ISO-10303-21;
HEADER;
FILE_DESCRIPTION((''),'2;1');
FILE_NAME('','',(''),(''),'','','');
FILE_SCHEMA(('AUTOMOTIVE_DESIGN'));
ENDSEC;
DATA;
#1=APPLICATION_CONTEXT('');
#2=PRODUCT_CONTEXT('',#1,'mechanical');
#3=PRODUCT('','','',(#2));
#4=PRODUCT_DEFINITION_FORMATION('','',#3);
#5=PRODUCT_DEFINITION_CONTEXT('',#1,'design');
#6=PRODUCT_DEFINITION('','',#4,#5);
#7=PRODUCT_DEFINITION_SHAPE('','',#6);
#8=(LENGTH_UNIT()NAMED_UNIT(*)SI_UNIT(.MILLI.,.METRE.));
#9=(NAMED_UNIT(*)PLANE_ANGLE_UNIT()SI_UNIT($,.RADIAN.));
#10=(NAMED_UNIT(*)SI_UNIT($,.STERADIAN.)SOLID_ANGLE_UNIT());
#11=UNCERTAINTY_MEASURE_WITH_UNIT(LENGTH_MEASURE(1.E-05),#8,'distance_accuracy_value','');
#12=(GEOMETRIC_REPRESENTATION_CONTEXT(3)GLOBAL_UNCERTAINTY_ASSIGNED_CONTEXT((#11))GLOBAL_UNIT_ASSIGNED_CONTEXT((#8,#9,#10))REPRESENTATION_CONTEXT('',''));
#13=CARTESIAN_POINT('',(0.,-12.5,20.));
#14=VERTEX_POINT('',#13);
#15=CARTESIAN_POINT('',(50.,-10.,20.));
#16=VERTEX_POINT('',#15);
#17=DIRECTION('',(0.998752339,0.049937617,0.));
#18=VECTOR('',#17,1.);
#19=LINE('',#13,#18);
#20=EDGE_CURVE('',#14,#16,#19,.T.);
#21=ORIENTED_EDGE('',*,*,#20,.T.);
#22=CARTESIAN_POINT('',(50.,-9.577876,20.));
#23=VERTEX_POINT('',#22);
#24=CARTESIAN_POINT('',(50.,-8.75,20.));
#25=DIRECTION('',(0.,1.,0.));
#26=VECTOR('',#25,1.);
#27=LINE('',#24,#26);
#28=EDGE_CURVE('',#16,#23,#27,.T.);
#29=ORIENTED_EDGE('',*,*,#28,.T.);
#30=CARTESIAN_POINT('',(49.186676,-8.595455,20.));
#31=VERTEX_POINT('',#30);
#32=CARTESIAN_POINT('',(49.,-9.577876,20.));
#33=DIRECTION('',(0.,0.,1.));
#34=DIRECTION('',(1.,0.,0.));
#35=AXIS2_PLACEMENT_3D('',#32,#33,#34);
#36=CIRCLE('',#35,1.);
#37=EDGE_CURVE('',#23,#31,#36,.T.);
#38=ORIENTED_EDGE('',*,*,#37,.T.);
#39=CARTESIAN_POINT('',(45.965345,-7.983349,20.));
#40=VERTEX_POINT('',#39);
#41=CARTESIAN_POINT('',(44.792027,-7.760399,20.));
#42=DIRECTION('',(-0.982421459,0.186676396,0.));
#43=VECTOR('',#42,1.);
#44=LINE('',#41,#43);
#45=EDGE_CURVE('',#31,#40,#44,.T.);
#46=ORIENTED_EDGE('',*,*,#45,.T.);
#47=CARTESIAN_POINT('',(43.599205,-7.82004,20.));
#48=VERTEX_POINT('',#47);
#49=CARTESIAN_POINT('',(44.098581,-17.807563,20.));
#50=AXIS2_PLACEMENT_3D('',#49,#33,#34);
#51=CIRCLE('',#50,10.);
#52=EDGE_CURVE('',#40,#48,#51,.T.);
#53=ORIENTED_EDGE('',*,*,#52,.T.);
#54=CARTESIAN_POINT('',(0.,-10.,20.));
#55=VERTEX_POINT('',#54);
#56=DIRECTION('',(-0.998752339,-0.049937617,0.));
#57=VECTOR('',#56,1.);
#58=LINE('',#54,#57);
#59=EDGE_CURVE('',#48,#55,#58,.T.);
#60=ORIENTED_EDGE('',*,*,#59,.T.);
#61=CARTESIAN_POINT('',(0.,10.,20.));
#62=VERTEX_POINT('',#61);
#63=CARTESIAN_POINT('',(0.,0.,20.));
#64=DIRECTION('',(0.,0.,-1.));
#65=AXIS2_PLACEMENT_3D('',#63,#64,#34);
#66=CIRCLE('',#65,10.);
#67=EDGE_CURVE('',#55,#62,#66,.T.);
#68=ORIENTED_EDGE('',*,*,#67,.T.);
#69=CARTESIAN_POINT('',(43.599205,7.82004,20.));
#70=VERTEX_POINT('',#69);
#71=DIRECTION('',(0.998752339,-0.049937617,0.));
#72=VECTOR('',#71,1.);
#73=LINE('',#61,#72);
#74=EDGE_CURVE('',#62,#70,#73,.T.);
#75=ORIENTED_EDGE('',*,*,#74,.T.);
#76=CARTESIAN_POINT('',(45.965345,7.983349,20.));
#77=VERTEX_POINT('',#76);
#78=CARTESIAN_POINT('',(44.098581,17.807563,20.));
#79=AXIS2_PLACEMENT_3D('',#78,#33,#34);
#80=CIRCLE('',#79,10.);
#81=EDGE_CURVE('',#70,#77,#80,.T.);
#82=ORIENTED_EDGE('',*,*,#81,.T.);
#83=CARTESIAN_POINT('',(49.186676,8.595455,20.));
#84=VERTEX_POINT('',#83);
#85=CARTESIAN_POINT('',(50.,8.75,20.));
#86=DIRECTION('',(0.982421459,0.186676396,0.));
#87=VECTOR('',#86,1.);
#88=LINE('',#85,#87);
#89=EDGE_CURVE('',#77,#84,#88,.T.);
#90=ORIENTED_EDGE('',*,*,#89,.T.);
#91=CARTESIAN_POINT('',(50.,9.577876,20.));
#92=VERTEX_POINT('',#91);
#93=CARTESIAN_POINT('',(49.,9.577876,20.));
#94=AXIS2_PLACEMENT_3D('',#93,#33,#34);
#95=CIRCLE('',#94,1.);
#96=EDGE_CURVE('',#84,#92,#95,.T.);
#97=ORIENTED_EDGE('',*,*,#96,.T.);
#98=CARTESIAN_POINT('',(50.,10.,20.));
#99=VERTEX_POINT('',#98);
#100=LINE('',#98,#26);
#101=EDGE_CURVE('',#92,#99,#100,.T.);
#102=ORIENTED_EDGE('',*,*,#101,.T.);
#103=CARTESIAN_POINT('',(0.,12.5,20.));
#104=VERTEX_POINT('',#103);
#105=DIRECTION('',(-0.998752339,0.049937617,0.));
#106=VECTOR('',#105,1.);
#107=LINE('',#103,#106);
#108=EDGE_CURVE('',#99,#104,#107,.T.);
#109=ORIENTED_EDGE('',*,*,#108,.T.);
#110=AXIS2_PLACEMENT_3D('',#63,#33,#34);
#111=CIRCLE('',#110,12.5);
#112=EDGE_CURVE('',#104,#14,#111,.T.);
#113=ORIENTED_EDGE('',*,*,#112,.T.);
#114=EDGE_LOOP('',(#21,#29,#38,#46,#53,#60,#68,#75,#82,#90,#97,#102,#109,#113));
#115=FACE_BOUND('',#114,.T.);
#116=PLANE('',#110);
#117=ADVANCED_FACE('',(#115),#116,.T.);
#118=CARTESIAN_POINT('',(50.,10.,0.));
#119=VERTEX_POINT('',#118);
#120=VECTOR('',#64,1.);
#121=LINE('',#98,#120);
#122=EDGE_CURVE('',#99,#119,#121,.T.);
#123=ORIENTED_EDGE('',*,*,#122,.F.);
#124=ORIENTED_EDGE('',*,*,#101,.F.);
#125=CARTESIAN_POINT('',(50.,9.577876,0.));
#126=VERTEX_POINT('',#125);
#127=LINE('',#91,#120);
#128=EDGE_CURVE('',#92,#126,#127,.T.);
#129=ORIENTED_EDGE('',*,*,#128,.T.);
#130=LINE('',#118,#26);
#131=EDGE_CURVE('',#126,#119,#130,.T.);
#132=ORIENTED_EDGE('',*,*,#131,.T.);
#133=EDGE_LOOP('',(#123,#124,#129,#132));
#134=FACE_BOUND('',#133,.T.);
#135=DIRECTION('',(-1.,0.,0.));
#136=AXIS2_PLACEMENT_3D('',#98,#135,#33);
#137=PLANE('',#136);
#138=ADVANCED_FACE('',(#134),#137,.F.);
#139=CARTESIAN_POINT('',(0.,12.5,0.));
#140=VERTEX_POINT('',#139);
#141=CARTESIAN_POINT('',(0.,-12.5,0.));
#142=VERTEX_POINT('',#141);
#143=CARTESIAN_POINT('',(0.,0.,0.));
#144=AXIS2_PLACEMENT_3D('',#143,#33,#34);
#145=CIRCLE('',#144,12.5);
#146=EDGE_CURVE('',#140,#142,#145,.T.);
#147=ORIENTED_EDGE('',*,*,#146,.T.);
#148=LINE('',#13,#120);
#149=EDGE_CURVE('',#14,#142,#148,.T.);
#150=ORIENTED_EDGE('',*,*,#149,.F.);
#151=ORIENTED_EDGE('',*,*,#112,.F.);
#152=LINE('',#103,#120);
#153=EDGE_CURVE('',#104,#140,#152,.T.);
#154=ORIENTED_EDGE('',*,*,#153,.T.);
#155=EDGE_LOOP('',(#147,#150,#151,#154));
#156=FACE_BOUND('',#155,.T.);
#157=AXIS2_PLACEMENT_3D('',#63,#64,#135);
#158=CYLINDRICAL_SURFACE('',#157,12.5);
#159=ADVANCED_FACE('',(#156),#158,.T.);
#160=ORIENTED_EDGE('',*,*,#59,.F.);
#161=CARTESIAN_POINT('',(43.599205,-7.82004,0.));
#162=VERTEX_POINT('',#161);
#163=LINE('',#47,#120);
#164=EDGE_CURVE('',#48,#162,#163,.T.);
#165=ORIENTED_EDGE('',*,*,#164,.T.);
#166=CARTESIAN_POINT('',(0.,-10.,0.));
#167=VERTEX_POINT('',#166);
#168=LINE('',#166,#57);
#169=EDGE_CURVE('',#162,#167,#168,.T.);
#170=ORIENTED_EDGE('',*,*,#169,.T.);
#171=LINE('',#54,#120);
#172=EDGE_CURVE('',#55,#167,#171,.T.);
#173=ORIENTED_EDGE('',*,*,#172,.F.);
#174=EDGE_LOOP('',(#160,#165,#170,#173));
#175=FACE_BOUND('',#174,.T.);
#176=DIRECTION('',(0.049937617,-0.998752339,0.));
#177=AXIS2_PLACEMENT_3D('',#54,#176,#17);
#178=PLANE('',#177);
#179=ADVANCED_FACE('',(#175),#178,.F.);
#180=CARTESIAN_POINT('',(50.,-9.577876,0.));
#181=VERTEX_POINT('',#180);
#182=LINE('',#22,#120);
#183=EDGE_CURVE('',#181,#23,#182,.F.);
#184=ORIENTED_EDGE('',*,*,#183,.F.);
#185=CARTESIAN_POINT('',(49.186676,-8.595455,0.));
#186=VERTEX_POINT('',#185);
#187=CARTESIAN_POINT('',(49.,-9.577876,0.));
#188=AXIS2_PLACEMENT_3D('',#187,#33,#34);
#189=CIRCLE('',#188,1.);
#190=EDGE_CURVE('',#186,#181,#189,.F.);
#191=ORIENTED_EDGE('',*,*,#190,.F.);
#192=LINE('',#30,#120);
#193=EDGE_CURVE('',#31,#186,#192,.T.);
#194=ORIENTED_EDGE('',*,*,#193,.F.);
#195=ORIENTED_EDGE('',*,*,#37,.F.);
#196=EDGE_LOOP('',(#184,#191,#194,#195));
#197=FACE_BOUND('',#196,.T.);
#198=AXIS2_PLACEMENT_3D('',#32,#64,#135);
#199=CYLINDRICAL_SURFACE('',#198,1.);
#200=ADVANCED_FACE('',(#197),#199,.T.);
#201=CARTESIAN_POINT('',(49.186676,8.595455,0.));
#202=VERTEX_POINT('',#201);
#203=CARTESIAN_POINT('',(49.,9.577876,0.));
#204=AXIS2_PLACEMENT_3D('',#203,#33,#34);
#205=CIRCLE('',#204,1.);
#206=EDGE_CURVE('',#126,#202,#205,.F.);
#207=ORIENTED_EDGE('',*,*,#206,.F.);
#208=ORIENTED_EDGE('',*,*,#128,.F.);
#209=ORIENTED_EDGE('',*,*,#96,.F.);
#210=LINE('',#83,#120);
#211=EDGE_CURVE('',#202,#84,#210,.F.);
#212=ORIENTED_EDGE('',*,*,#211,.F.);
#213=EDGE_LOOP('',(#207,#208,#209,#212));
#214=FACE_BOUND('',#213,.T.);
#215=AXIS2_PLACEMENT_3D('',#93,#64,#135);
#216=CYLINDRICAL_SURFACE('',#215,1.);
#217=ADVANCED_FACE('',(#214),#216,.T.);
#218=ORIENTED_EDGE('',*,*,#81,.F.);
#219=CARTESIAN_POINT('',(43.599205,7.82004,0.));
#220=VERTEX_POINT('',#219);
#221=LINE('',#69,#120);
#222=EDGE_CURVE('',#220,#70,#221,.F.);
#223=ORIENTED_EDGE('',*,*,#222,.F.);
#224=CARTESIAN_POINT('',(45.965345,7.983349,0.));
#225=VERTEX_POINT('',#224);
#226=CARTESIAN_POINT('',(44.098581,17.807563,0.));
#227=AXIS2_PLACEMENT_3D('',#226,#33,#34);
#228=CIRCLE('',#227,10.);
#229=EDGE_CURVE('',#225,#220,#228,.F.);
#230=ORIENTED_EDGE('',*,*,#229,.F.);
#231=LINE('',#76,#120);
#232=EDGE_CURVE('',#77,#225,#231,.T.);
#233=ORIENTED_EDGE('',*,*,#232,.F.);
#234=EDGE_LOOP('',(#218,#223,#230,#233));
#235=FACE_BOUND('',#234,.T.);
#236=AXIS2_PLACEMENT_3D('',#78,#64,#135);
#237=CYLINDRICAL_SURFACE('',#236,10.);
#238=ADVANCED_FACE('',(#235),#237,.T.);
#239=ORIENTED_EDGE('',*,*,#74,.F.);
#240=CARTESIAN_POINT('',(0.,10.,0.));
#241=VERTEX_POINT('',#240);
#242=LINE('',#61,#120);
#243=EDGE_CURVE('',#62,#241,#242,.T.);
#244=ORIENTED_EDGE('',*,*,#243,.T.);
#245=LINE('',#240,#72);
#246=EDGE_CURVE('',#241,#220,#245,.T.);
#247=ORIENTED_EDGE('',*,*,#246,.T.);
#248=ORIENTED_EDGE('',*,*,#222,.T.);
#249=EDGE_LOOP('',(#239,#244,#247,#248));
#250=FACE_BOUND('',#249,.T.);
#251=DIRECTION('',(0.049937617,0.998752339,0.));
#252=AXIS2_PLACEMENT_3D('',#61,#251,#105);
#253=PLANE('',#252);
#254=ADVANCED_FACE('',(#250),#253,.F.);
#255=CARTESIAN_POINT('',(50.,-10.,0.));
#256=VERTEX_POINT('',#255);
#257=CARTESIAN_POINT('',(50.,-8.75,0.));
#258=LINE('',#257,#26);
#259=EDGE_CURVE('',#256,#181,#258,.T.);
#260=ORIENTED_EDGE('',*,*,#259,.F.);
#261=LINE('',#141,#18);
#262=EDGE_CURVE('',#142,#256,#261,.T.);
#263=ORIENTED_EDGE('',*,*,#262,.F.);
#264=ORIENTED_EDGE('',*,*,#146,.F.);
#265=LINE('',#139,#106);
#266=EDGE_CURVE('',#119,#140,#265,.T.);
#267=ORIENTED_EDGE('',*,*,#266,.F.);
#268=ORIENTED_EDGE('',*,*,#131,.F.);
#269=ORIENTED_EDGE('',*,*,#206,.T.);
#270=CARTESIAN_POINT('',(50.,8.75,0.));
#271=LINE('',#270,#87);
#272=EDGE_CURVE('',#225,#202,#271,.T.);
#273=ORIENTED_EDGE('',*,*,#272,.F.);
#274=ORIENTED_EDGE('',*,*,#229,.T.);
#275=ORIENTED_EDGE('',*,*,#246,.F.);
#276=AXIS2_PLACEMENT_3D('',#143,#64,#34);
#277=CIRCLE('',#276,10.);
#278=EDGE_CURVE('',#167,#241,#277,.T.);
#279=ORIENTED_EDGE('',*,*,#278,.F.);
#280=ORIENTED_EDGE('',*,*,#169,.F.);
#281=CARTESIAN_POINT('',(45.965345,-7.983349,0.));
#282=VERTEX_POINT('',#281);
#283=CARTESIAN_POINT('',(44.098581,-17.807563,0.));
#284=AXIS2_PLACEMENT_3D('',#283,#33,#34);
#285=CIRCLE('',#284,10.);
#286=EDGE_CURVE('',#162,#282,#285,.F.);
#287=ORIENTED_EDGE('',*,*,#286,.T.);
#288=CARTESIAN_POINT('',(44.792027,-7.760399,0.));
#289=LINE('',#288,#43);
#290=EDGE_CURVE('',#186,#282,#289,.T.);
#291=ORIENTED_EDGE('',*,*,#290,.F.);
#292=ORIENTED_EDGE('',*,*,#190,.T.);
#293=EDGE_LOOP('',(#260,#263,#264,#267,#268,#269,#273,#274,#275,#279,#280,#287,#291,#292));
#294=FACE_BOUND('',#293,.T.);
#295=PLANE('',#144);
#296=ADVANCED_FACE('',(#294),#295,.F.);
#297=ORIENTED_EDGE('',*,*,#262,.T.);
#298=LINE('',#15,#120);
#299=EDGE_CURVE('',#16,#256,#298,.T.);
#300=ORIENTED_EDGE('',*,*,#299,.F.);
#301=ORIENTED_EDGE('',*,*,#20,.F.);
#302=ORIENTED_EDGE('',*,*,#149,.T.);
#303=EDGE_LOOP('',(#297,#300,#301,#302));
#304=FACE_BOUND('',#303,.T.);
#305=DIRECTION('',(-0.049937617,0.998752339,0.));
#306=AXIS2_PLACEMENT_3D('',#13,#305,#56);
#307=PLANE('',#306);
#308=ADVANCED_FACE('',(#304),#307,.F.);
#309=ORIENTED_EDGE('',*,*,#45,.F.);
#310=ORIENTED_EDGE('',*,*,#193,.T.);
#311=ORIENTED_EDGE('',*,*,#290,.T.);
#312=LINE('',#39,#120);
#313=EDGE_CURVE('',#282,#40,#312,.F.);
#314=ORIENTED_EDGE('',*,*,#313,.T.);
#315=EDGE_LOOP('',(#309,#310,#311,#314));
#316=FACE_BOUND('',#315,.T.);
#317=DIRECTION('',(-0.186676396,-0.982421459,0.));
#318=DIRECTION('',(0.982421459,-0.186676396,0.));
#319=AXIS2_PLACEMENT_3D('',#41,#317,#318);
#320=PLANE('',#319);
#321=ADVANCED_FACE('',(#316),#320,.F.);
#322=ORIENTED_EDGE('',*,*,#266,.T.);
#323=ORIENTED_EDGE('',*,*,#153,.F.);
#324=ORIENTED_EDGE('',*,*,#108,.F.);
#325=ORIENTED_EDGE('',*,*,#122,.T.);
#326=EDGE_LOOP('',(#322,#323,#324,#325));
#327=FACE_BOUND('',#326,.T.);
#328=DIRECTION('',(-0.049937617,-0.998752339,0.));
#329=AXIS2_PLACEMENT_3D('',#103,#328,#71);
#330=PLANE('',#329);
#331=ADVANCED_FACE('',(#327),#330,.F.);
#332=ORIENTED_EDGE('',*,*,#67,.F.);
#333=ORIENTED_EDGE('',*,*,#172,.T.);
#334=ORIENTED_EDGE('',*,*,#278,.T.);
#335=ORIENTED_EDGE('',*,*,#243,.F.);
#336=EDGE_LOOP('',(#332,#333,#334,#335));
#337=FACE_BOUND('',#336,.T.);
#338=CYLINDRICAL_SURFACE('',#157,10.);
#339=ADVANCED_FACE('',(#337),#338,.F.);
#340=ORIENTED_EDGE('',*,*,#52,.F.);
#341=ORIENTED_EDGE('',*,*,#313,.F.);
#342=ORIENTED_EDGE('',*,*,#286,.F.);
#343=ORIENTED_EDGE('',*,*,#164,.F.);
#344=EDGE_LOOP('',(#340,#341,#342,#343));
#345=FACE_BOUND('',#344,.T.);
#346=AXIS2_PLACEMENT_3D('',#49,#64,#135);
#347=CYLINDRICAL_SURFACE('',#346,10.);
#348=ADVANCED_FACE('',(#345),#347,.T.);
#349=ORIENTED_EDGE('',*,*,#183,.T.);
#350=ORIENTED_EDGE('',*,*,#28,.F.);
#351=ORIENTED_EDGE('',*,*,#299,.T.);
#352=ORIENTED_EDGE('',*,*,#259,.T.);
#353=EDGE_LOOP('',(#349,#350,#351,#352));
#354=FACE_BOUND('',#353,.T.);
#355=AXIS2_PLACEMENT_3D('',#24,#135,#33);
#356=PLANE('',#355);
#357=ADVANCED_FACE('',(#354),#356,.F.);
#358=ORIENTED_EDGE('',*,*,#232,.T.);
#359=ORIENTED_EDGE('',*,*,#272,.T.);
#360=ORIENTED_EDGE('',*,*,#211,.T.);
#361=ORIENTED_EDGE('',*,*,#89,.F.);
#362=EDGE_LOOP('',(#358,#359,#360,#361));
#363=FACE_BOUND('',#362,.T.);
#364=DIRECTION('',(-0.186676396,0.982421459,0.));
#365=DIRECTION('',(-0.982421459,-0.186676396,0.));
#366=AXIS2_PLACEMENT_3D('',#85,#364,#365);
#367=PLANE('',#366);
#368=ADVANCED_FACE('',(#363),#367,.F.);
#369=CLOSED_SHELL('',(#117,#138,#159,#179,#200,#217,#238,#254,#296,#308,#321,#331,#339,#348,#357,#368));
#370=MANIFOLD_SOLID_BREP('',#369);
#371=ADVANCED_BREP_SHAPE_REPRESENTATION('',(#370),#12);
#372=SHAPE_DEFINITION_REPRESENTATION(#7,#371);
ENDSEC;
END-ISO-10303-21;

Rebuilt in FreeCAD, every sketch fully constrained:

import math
import FreeCAD as App
import Part
import Sketcher
from FreeCAD import Vector
Q = App.Units.Quantity


def edges_at(feature, points):
    """Names of the edges that pass closest to the given points."""
    edges = feature.Shape.Edges
    near = lambda p: min(range(len(edges)), key=lambda i: edges[i].distToShape(Part.Vertex(*p))[0])
    return sorted({f"Edge{near(p) + 1}" for p in points})

doc = App.newDocument("Part")
params = doc.addObject("Spreadsheet::Sheet", "Params")
for row, (alias, value) in enumerate([
    ("sketch1_radius", "10 mm"),
    ("sketch1_radius2", "12.5 mm"),
    ("sketch1_height", "1.25 mm"),
    ("pad1_length", "20 mm"),
    ("fillet_radius", "10 mm"),
    ("fillet2_radius", "1 mm"),
], start=1):
    params.set(f"A{row}", alias)
    params.set(f"B{row}", "=" + value)
    params.setAlias(f"B{row}", alias)

body = doc.addObject("PartDesign::Body", "Body")

# Sketch on XY plane
sketch1 = body.newObject("Sketcher::SketchObject", "Sketch")
sketch1.AttachmentSupport = (doc.getObject("XY_Plane"), [""])
sketch1.MapMode = "FlatFace"
sketch1.addGeometry([
    Part.LineSegment(Vector(50, 8.75, 0), Vector(50, 10, 0)),  # 0
    Part.LineSegment(Vector(50, 10, 0), Vector(0, 12.5, 0)),  # 1
    Part.ArcOfCircle(Part.Circle(Vector(0, 0, 0), Vector(0, 0, 1), 12.5), math.radians(90), math.radians(270)),  # 2
    Part.LineSegment(Vector(0, -12.5, 0), Vector(50, -10, 0)),  # 3
    Part.LineSegment(Vector(50, -10, 0), Vector(50, -8.75, 0)),  # 4
    Part.LineSegment(Vector(50, -8.75, 0), Vector(44.792027, -7.760399, 0)),  # 5
    Part.LineSegment(Vector(44.792027, -7.760399, 0), Vector(0, -10, 0)),  # 6
    Part.ArcOfCircle(Part.Circle(Vector(0, 0, 0), Vector(0, 0, 1), 10), math.radians(90), math.radians(270)),  # 7
    Part.LineSegment(Vector(0, 10, 0), Vector(44.792027, 7.760399, 0)),  # 8
    Part.LineSegment(Vector(44.792027, 7.760399, 0), Vector(50, 8.75, 0)),  # 9
], False)
sketch1.addConstraint([
    Sketcher.Constraint("Coincident", 0, 2, 1, 1),
    Sketcher.Constraint("Coincident", 1, 2, 2, 1),
    Sketcher.Constraint("Coincident", 2, 2, 3, 1),
    Sketcher.Constraint("Coincident", 3, 2, 4, 1),
    Sketcher.Constraint("Coincident", 4, 2, 5, 1),
    Sketcher.Constraint("Coincident", 5, 2, 6, 1),
    Sketcher.Constraint("Coincident", 6, 2, 7, 2),
    Sketcher.Constraint("Coincident", 7, 1, 8, 1),
    Sketcher.Constraint("Coincident", 8, 2, 9, 1),
    Sketcher.Constraint("Coincident", 9, 2, 0, 1),
    Sketcher.Constraint("Vertical", 0),
    Sketcher.Constraint("Vertical", 4),
    Sketcher.Constraint("Coincident", 2, 3, -1, 1),
    Sketcher.Constraint("Coincident", 7, 3, -1, 1),
    Sketcher.Constraint("Symmetric", 0, 2, 3, 2, -1),
    Sketcher.Constraint("Symmetric", 5, 2, 8, 2, -1),
    Sketcher.Constraint("PointOnObject", 1, 2, -2),
    Sketcher.Constraint("PointOnObject", 2, 2, -2),
    Sketcher.Constraint("PointOnObject", 6, 2, -2),
    Sketcher.Constraint("PointOnObject", 7, 1, -2),
    Sketcher.Constraint("Parallel", 3, 6),
    Sketcher.Constraint("Horizontal", 3, 2, 6, 2),
    Sketcher.Constraint("Equal", 0, 4),
    Sketcher.Constraint("Radius", 7, Q("10 mm")),
    Sketcher.Constraint("Radius", 2, Q("12.5 mm")),
    Sketcher.Constraint("DistanceX", -1, 1, 0, 2, Q("50 mm")),
    Sketcher.Constraint("DistanceY", 0, 1, 0, 2, Q("1.25 mm")),
    Sketcher.Constraint("DistanceY", 5, 2, -1, 1, Q("7.760399 mm")),
])
sketch1.setExpression("Constraints[23]", "Params.sketch1_radius")
sketch1.setExpression("Constraints[24]", "Params.sketch1_radius2")
sketch1.setExpression("Constraints[26]", "Params.sketch1_height")
pad1 = body.newObject("PartDesign::Pad", "Pad")
pad1.Profile = sketch1
pad1.setExpression("Length", "Params.pad1_length")
doc.recompute()

fillet = body.newObject("PartDesign::Fillet", "Fillet")
fillet.Base = (pad1, edges_at(pad1, [(44.792, 7.76, 10), (44.792, -7.76, 10)]))
fillet.setExpression("Radius", "Params.fillet_radius")
doc.recompute()

fillet2 = body.newObject("PartDesign::Fillet", "Fillet001")
fillet2.Base = (fillet, edges_at(fillet, [(50, -8.75, 10), (50, 8.75, 10)]))
fillet2.setExpression("Radius", "Params.fillet2_radius")

doc.recompute()
